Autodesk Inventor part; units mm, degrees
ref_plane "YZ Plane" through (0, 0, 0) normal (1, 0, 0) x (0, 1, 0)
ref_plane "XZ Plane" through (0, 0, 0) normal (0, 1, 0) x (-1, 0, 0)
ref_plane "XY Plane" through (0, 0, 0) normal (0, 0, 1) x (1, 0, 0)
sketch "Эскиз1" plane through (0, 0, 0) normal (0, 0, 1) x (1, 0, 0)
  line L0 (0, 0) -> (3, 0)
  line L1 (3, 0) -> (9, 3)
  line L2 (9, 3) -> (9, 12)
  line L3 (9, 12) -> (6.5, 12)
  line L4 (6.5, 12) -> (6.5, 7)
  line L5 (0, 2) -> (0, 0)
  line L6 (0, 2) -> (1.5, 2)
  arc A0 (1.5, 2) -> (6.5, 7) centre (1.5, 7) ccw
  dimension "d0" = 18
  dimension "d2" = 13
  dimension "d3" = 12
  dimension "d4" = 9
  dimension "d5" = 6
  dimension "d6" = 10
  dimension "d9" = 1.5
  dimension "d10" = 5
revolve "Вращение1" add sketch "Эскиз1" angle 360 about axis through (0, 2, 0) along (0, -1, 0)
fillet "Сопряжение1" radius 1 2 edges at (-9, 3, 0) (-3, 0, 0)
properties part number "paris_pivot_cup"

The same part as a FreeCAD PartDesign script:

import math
import FreeCAD as App
import Part
import Sketcher


def edges_at(feature, points):
    """Names of the edges that pass closest to the given points."""
    edges = feature.Shape.Edges
    near = lambda p: min(range(len(edges)), key=lambda i: edges[i].distToShape(Part.Vertex(*p))[0])
    return sorted({f"Edge{near(p) + 1}" for p in points})

doc = App.newDocument("Part")
body = doc.addObject("PartDesign::Body", "Body")

# Sketch on XY plane
sketch1 = body.newObject("Sketcher::SketchObject", "Sketch")
sketch1.AttachmentSupport = (doc.getObject("XY_Plane"), [""])
sketch1.MapMode = "FlatFace"
sketch1.addGeometry(Part.LineSegment(App.Vector(0, 2, 0), App.Vector(0, 0, 0)), False)
sketch1.addGeometry(Part.LineSegment(App.Vector(0, 0, 0), App.Vector(3, 0, 0)), False)
sketch1.addGeometry(Part.LineSegment(App.Vector(3, 0, 0), App.Vector(9, 3, 0)), False)
sketch1.addGeometry(Part.LineSegment(App.Vector(9, 3, 0), App.Vector(9, 12, 0)), False)
sketch1.addGeometry(Part.LineSegment(App.Vector(9, 12, 0), App.Vector(6.5, 12, 0)), False)
sketch1.addGeometry(Part.LineSegment(App.Vector(6.5, 12, 0), App.Vector(6.5, 7, 0)), False)
sketch1.addGeometry(Part.ArcOfCircle(Part.Circle(App.Vector(1.5, 7, 0), App.Vector(0, 0, 1), 5), math.radians(-90), math.radians(0)), False)
sketch1.addGeometry(Part.LineSegment(App.Vector(1.5, 2, 0), App.Vector(0, 2, 0)), False)
sketch1.addConstraint(Sketcher.Constraint("Coincident", 0, 2, 1, 1))
sketch1.addConstraint(Sketcher.Constraint("Coincident", 1, 2, 2, 1))
sketch1.addConstraint(Sketcher.Constraint("Coincident", 2, 2, 3, 1))
sketch1.addConstraint(Sketcher.Constraint("Coincident", 3, 2, 4, 1))
sketch1.addConstraint(Sketcher.Constraint("Coincident", 4, 2, 5, 1))
sketch1.addConstraint(Sketcher.Constraint("Tangent", 5, 2, 6, 2))
sketch1.addConstraint(Sketcher.Constraint("Tangent", 6, 1, 7, 1))
sketch1.addConstraint(Sketcher.Constraint("Coincident", 7, 2, 0, 1))
sketch1.addConstraint(Sketcher.Constraint("Vertical", 0))
sketch1.addConstraint(Sketcher.Constraint("Horizontal", 1))
sketch1.addConstraint(Sketcher.Constraint("Vertical", 3))
sketch1.addConstraint(Sketcher.Constraint("Horizontal", 4))
sketch1.addConstraint(Sketcher.Constraint("Vertical", 5))
sketch1.addConstraint(Sketcher.Constraint("Horizontal", 7))
sketch1.addConstraint(Sketcher.Constraint("Coincident", 0, 2, -1, 1))
sketch1.addConstraint(Sketcher.Constraint("Radius", 6, 5.0))
sketch1.addConstraint(Sketcher.Constraint("DistanceY", 3, 1, 3, 2, 9.0))
sketch1.addConstraint(Sketcher.Constraint("DistanceY", 5, 2, 5, 1, 5.0))
sketch1.addConstraint(Sketcher.Constraint("DistanceX", 7, 2, 7, 1, 1.5))
sketch1.addConstraint(Sketcher.Constraint("DistanceX", -1, 1, 2, 2, 9.0))
sketch1.addConstraint(Sketcher.Constraint("DistanceY", -1, 1, 3, 2, 12.0))
sketch1.addConstraint(Sketcher.Constraint("DistanceX", 1, 2, 2, 2, 6.0))
revolution = body.newObject("PartDesign::Revolution", "Revolution")
revolution.Profile = sketch1
revolution.ReferenceAxis = (sketch1, ["V_Axis"])
revolution.Angle = 360
doc.recompute()

fillet = body.newObject("PartDesign::Fillet", "Fillet")
fillet.Base = (revolution, edges_at(revolution, [(-9, 3, 0), (-3, 0, 0)]))
fillet.Radius = 1

doc.recompute()
